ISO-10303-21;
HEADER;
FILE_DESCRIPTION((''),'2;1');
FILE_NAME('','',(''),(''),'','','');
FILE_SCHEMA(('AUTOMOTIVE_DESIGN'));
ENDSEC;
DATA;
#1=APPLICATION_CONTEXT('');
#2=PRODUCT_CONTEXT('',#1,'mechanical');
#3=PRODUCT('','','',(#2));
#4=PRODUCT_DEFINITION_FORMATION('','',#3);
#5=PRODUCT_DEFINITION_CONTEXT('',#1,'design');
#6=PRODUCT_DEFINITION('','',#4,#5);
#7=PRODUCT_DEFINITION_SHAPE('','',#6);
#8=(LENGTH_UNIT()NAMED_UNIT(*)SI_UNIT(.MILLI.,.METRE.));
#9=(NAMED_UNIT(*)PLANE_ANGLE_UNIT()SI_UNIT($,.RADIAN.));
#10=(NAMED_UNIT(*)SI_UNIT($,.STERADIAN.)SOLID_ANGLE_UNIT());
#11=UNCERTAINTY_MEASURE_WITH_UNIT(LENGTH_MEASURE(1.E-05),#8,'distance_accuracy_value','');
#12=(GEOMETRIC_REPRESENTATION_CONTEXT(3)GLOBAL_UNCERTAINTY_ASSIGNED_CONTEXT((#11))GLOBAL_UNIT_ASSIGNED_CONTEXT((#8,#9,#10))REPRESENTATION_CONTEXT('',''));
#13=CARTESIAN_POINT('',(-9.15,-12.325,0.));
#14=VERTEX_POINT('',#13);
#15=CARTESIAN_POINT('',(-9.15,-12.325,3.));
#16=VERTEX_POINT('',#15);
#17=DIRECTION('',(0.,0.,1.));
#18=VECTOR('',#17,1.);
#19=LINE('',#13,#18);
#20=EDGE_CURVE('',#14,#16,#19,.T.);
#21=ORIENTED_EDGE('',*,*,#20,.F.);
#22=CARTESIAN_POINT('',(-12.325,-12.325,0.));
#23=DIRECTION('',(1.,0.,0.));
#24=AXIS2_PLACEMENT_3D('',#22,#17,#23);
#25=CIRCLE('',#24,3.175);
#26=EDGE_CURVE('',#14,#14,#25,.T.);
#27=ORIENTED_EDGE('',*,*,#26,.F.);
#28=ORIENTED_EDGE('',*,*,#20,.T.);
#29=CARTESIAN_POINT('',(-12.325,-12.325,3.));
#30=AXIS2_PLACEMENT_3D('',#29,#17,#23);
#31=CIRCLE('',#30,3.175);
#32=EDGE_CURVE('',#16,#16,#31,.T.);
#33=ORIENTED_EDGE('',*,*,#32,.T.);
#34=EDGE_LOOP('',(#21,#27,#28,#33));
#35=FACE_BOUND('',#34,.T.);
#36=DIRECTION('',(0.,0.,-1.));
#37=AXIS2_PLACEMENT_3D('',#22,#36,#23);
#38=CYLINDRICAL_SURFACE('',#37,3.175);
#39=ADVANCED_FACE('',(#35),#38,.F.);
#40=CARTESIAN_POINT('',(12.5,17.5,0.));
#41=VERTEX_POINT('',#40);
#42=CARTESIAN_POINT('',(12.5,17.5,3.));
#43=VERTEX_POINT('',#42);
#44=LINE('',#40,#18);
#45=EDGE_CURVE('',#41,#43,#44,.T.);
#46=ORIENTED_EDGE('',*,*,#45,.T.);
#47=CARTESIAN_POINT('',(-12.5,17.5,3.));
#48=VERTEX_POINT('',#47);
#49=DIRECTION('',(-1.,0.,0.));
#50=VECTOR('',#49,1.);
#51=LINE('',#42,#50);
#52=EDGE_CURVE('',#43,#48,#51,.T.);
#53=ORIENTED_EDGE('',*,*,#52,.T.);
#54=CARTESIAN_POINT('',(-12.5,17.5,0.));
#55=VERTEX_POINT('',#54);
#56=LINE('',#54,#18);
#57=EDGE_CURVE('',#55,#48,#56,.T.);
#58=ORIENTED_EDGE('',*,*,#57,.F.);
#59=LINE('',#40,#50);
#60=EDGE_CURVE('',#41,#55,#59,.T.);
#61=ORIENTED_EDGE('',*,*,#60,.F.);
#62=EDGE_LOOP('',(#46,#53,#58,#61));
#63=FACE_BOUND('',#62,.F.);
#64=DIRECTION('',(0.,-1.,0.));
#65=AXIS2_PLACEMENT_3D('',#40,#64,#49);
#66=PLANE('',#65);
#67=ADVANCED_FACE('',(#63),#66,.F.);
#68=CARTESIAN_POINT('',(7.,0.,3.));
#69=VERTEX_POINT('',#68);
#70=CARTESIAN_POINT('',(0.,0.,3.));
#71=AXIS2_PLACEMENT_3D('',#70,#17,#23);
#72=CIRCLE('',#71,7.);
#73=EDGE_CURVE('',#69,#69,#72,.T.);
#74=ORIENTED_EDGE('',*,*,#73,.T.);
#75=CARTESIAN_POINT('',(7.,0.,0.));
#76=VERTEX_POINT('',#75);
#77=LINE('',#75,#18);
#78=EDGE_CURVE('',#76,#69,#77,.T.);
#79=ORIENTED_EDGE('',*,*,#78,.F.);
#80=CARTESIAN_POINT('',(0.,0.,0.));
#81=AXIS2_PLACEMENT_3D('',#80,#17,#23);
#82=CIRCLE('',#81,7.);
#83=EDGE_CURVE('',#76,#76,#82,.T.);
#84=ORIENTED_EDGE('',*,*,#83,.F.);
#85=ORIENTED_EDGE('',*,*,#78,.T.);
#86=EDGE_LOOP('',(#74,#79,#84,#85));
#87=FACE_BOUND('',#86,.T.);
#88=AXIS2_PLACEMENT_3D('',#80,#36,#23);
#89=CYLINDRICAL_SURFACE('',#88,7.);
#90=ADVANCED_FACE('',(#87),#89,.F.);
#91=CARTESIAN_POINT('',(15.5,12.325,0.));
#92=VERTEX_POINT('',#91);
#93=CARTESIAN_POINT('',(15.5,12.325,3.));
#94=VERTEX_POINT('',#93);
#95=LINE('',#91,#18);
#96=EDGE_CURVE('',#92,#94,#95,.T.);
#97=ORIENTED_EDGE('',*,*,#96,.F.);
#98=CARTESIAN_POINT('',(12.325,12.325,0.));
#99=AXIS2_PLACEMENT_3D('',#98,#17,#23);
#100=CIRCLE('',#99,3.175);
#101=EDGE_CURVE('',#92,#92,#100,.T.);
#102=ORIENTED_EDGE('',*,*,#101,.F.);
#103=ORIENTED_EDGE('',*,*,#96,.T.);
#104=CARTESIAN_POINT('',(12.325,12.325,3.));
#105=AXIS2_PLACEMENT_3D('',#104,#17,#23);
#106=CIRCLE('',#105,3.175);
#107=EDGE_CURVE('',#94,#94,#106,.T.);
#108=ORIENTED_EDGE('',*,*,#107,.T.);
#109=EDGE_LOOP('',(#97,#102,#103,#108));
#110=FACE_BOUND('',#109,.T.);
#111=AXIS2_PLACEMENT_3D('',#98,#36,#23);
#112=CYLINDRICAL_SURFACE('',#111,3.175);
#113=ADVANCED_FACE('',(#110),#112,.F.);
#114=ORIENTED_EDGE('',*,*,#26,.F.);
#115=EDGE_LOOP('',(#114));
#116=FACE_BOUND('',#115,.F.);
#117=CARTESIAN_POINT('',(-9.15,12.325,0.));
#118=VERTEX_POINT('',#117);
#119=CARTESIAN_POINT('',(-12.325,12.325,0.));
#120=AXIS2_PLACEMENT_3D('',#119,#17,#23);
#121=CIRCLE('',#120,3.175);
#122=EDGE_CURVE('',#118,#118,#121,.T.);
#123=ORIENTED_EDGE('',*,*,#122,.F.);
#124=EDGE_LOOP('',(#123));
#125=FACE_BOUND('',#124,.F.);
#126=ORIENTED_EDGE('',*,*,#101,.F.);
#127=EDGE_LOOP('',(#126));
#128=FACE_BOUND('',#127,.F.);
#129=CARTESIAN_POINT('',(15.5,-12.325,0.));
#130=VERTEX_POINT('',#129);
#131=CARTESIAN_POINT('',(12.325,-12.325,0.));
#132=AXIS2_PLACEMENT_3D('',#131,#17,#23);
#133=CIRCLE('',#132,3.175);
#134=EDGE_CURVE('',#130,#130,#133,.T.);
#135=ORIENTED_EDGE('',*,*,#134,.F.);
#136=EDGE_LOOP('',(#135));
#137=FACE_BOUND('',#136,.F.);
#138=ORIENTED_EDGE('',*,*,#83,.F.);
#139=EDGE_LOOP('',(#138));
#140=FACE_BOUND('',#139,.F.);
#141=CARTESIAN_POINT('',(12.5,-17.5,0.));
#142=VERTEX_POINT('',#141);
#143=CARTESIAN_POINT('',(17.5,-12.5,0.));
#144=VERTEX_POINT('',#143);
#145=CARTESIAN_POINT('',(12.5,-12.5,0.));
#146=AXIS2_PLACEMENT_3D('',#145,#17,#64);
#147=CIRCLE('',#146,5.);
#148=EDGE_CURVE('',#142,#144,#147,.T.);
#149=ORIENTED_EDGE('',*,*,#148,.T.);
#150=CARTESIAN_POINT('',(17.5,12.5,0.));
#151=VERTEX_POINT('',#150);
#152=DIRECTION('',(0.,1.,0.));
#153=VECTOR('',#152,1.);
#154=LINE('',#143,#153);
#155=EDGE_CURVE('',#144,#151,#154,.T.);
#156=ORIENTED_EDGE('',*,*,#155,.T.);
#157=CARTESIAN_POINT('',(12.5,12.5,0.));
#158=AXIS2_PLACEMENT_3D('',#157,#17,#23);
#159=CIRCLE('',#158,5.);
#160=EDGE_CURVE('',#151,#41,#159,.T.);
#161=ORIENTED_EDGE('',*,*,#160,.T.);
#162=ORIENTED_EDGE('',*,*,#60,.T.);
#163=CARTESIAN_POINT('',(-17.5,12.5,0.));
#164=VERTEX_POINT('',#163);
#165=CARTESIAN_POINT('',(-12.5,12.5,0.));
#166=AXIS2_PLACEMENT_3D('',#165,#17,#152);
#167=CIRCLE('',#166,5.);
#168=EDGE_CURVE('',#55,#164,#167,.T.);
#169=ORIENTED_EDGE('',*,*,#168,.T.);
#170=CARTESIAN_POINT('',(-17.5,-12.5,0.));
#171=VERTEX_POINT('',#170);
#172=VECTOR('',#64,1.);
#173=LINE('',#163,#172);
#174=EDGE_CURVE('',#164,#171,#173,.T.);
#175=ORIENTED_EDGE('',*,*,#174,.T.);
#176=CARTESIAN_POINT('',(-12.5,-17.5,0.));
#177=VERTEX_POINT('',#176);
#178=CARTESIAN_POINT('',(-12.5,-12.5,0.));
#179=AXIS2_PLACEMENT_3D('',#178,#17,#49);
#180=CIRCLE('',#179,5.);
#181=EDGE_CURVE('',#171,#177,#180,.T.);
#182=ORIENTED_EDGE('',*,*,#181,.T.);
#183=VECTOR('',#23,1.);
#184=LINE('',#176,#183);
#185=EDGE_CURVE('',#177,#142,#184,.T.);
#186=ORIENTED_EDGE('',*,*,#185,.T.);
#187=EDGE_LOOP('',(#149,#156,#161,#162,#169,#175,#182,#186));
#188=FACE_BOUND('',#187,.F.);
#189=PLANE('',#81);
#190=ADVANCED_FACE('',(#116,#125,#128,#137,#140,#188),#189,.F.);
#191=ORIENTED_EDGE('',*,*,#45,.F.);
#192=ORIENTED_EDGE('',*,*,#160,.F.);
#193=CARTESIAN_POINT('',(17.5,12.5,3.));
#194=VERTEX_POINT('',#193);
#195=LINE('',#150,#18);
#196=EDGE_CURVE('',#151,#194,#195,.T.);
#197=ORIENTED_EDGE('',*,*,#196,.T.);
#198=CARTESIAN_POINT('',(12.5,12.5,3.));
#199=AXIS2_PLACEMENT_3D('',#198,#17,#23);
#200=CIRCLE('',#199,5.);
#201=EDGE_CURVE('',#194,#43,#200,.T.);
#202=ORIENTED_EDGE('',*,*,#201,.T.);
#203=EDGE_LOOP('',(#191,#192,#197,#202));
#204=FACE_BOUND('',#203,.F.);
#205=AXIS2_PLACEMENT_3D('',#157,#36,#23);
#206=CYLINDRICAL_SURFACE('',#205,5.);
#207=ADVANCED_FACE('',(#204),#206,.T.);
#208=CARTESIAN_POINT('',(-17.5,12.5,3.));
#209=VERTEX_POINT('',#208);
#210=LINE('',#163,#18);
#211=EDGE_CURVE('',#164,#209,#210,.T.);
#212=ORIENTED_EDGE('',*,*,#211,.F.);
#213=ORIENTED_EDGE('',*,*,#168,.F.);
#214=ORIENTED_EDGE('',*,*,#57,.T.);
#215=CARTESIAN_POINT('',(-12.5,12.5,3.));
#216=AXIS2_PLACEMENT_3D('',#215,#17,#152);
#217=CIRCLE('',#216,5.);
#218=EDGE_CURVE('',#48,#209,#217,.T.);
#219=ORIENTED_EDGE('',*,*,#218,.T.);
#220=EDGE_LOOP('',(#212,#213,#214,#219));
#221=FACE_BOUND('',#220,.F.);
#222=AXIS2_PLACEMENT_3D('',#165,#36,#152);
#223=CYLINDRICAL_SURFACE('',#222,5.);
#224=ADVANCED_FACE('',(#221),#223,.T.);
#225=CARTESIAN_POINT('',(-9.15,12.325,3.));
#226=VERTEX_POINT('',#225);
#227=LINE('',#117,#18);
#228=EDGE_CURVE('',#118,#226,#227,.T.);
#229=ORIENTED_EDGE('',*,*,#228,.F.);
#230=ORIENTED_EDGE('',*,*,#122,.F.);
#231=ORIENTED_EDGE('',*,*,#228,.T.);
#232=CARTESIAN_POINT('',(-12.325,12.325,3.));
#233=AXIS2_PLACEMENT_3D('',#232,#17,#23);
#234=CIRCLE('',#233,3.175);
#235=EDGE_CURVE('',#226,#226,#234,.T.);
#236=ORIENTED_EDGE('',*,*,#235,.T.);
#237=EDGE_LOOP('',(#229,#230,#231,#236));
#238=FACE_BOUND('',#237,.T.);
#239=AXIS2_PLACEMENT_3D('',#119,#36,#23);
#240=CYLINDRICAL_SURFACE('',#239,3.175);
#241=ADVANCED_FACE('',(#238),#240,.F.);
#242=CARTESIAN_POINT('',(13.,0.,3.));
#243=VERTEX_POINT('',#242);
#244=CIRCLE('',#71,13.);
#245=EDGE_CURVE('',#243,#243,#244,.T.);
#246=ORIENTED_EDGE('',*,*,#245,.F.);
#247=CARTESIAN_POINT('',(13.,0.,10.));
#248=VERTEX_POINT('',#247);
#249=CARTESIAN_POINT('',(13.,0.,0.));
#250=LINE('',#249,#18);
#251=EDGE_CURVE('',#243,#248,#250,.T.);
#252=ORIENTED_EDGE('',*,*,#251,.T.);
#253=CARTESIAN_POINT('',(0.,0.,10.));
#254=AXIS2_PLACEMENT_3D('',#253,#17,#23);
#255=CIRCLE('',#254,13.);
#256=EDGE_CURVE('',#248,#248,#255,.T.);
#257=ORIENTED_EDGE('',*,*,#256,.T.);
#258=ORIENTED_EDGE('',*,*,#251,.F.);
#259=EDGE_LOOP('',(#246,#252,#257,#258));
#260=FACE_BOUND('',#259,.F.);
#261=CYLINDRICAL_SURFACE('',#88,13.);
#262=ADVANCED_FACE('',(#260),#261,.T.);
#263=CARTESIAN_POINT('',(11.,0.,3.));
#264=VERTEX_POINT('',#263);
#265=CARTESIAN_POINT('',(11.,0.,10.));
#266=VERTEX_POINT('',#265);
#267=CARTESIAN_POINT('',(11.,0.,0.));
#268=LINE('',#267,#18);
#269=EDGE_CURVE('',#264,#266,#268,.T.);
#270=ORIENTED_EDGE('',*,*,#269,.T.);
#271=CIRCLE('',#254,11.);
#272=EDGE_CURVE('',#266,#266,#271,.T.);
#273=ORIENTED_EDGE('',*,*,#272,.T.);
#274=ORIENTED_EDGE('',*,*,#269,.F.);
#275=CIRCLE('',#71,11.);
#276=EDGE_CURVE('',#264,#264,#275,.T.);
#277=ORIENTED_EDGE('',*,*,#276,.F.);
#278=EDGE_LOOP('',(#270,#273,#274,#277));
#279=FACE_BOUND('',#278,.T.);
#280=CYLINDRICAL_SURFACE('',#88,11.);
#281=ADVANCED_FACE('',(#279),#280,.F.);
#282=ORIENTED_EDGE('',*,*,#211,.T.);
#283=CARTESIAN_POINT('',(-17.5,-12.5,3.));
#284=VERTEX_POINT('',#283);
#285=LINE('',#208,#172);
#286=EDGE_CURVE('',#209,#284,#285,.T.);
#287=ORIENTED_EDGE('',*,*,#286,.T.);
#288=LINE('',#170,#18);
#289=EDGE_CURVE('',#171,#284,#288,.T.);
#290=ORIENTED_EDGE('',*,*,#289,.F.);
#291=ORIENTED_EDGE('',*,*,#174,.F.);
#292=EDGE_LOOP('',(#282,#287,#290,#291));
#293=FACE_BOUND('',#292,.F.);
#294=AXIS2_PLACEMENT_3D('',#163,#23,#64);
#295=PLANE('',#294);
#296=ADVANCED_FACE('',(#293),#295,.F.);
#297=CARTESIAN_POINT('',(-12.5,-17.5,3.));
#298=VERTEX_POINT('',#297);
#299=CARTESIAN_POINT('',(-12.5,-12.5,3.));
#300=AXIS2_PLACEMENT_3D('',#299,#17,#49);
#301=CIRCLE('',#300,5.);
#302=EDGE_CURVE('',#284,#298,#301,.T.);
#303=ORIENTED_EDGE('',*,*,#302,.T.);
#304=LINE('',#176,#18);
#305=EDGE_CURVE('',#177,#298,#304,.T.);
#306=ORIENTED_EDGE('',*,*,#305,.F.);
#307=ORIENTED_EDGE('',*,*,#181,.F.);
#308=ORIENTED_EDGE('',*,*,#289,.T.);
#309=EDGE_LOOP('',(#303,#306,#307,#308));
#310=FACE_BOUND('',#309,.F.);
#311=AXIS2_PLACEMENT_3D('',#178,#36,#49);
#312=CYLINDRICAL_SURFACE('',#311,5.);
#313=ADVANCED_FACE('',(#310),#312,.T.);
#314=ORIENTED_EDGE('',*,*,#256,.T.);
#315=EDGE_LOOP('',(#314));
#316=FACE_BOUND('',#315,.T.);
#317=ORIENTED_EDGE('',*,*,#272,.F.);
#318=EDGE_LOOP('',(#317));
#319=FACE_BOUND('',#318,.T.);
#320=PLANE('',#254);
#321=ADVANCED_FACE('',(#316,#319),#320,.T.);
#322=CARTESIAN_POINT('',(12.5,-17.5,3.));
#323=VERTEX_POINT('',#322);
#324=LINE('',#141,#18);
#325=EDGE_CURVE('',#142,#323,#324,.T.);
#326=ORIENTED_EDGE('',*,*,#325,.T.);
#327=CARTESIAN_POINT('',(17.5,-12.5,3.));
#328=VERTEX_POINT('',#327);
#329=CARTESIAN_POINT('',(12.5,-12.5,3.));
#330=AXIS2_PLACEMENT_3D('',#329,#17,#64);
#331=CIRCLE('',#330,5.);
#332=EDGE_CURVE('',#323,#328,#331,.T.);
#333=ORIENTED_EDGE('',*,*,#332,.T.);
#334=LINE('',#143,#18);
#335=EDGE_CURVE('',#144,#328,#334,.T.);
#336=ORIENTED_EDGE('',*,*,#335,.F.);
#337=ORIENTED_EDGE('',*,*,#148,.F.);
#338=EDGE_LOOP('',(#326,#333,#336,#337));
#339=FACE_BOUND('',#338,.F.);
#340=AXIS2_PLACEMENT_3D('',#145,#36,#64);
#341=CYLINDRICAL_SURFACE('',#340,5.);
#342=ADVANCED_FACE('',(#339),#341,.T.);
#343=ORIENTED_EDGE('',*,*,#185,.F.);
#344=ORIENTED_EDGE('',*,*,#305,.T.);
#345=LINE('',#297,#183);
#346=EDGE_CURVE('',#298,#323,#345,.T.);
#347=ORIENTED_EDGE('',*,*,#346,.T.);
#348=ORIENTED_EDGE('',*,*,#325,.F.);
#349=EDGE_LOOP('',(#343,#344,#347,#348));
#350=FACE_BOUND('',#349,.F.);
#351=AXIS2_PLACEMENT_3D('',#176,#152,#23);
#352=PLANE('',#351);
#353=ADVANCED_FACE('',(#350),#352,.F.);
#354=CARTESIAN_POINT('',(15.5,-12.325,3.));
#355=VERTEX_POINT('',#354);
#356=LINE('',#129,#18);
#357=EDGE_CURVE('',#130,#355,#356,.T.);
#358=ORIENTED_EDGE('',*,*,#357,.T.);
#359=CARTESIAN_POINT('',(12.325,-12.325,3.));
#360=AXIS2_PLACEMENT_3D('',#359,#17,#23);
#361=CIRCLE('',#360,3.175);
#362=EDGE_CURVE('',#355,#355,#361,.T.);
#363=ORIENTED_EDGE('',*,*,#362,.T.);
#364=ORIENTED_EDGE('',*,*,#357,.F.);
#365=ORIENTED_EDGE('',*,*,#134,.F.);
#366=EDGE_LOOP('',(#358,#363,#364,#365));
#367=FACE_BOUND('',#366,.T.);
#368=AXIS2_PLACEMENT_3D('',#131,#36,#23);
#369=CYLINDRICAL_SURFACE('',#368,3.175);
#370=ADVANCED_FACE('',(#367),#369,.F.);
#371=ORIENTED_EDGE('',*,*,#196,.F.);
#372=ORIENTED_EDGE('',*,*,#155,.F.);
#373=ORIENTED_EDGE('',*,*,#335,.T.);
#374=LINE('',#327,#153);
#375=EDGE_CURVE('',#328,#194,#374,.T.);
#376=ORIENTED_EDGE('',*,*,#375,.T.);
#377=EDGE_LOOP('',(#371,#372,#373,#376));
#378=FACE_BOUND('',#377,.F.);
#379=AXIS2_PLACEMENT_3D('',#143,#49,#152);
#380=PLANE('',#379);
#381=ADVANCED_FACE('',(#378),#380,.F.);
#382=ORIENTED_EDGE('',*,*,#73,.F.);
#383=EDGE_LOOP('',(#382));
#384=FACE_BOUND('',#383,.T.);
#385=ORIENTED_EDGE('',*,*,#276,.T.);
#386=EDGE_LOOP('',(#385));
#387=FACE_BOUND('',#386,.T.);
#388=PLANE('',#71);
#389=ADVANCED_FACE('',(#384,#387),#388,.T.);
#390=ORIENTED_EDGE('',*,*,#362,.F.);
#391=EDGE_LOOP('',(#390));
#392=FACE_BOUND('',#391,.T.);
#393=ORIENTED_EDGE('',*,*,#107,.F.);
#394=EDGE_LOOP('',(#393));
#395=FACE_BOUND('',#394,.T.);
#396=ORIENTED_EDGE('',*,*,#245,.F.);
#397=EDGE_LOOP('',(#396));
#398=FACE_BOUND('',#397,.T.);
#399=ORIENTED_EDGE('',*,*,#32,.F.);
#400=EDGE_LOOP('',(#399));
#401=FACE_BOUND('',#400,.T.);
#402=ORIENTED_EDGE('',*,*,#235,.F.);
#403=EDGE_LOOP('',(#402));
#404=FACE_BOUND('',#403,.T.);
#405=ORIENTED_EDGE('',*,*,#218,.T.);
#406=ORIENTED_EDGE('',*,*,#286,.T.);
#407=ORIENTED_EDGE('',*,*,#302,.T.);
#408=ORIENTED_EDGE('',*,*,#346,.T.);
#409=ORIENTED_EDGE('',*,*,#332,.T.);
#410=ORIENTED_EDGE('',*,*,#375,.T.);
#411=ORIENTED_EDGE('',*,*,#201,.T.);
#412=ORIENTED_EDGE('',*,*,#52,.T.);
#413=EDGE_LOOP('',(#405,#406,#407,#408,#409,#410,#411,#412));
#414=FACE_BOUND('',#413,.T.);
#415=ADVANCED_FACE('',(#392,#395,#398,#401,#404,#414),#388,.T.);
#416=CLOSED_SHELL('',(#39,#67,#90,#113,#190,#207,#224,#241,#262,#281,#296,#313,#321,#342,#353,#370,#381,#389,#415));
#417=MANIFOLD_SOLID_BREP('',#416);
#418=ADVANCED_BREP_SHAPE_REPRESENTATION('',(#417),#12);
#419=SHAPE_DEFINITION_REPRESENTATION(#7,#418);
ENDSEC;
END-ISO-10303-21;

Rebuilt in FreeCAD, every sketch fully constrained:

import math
import FreeCAD as App
import Part
import Sketcher
Q = App.Units.Quantity

doc = App.newDocument("Part")
body = doc.addObject("PartDesign::Body", "Body")

# Sketch on XY plane
sketch1 = doc.addObject("Sketcher::SketchObject", "Sketch")
body.addObject(sketch1)
sketch1.AttachmentSupport = (doc.XY_Plane, [""])
sketch1.MapMode = "FlatFace"
sketch1.addGeometry(Part.ArcOfCircle(Part.Circle(App.Vector(12.5, 12.5, 0), App.Vector(0, 0, 1), 5), math.radians(0), math.radians(90)), False)
sketch1.addGeometry(Part.LineSegment(App.Vector(12.5, 17.5, 0), App.Vector(-12.5, 17.5, 0)), False)
sketch1.addGeometry(Part.ArcOfCircle(Part.Circle(App.Vector(-12.5, 12.5, 0), App.Vector(0, 0, 1), 5), math.radians(90), math.radians(180)), False)
sketch1.addGeometry(Part.LineSegment(App.Vector(-17.5, 12.5, 0), App.Vector(-17.5, -12.5, 0)), False)
sketch1.addGeometry(Part.ArcOfCircle(Part.Circle(App.Vector(-12.5, -12.5, 0), App.Vector(0, 0, 1), 5), math.radians(180), math.radians(270)), False)
sketch1.addGeometry(Part.LineSegment(App.Vector(-12.5, -17.5, 0), App.Vector(12.5, -17.5, 0)), False)
sketch1.addGeometry(Part.ArcOfCircle(Part.Circle(App.Vector(12.5, -12.5, 0), App.Vector(0, 0, 1), 5), math.radians(-90), math.radians(0)), False)
sketch1.addGeometry(Part.LineSegment(App.Vector(17.5, -12.5, 0), App.Vector(17.5, 12.5, 0)), False)
sketch1.addGeometry(Part.Circle(App.Vector(-12.3, -12.3, 0), App.Vector(0, 0, 1), 3.2), False)
sketch1.addGeometry(Part.Circle(App.Vector(12.3, -12.3, 0), App.Vector(0, 0, 1), 3.2), False)
sketch1.addGeometry(Part.Circle(App.Vector(-12.3, 12.3, 0), App.Vector(0, 0, 1), 3.2), False)
sketch1.addGeometry(Part.Circle(App.Vector(0, 0, 0), App.Vector(0, 0, 1), 13), False)
sketch1.addGeometry(Part.Circle(App.Vector(12.3, 12.3, 0), App.Vector(0, 0, 1), 3.2), False)
sketch1.addConstraint(Sketcher.Constraint("Tangent", 0, 2, 1, 1))
sketch1.addConstraint(Sketcher.Constraint("Tangent", 1, 2, 2, 1))
sketch1.addConstraint(Sketcher.Constraint("Tangent", 2, 2, 3, 1))
sketch1.addConstraint(Sketcher.Constraint("Tangent", 3, 2, 4, 1))
sketch1.addConstraint(Sketcher.Constraint("Tangent", 4, 2, 5, 1))
sketch1.addConstraint(Sketcher.Constraint("Tangent", 5, 2, 6, 1))
sketch1.addConstraint(Sketcher.Constraint("Tangent", 6, 2, 7, 1))
sketch1.addConstraint(Sketcher.Constraint("Tangent", 7, 2, 0, 1))
sketch1.addConstraint(Sketcher.Constraint("Horizontal", 1))
sketch1.addConstraint(Sketcher.Constraint("Vertical", 3))
sketch1.addConstraint(Sketcher.Constraint("Horizontal", 5))
sketch1.addConstraint(Sketcher.Constraint("Vertical", 7))
sketch1.addConstraint(Sketcher.Constraint("Coincident", 11, 3, -1, 1))
sketch1.addConstraint(Sketcher.Constraint("Equal", 0, 2))
sketch1.addConstraint(Sketcher.Constraint("Equal", 2, 4))
sketch1.addConstraint(Sketcher.Constraint("Equal", 4, 6))
sketch1.addConstraint(Sketcher.Constraint("Equal", 8, 9))
sketch1.addConstraint(Sketcher.Constraint("Equal", 9, 10))
sketch1.addConstraint(Sketcher.Constraint("Equal", 10, 12))
sketch1.addConstraint(Sketcher.Constraint("Symmetric", 0, 3, 4, 3, -1, 1))
sketch1.addConstraint(Sketcher.Constraint("Symmetric", 9, 3, 10, 3, -1, 1))
sketch1.addConstraint(Sketcher.Constraint("Symmetric", 8, 3, 12, 3, -1, 1))
sketch1.addConstraint(Sketcher.Constraint("Symmetric", 8, 3, 9, 3, -2))
sketch1.addConstraint(Sketcher.Constraint("Equal", 5, 3))
sketch1.addConstraint(Sketcher.Constraint("Diameter", 11, Q("26 mm")))
sketch1.addConstraint(Sketcher.Constraint("Radius", 0, Q("5 mm")))
sketch1.addConstraint(Sketcher.Constraint("Diameter", 8, Q("6.35 mm")))
sketch1.addConstraint(Sketcher.Constraint("DistanceX", 1, 2, 1, 1, Q("25 mm")))
sketch1.addConstraint(Sketcher.Constraint("DistanceX", 8, 3, 9, 3, Q("24.65 mm")))
sketch1.addConstraint(Sketcher.Constraint("DistanceY", 8, 3, 10, 3, Q("24.65 mm")))
pad1 = doc.addObject("PartDesign::Pad", "Pad")
body.addObject(pad1)
pad1.Profile = sketch1
pad1.Length = 3
body2 = doc.addObject("PartDesign::Body", "Body001")

# Sketch on XY plane
sketch2 = doc.addObject("Sketcher::SketchObject", "Sketch001")
body2.addObject(sketch2)
sketch2.AttachmentSupport = (doc.getObject("XY_Plane001"), [""])
sketch2.MapMode = "FlatFace"
sketch2.addGeometry(Part.Circle(App.Vector(0, 0, 0), App.Vector(0, 0, 1), 11), False)
sketch2.addGeometry(Part.Circle(App.Vector(0, 0, 0), App.Vector(0, 0, 1), 7), False)
sketch2.addConstraint(Sketcher.Constraint("Coincident", 0, 3, -1, 1))
sketch2.addConstraint(Sketcher.Constraint("Coincident", 1, 3, -1, 1))
sketch2.addConstraint(Sketcher.Constraint("Diameter", 0, Q("22 mm")))
sketch2.addConstraint(Sketcher.Constraint("Diameter", 1, Q("14 mm")))
pad2 = doc.addObject("PartDesign::Pad", "Pad001")
body2.addObject(pad2)
pad2.Profile = sketch2
pad2.Length = 3
body.AllowCompound = True
doc.recompute()

boolean = doc.addObject("PartDesign::Boolean", "Boolean")
body.addObject(boolean)
boolean.Type = "Fuse"
boolean.addObjects([body2])

# Sketch on XY plane
sketch3 = doc.addObject("Sketcher::SketchObject", "Sketch002")
body.addObject(sketch3)
sketch3.AttachmentSupport = (doc.XY_Plane, [""])
sketch3.MapMode = "FlatFace"
sketch3.addGeometry(Part.Circle(App.Vector(0, 0, 0), App.Vector(0, 0, 1), 13), False)
sketch3.addGeometry(Part.Circle(App.Vector(0, 0, 0), App.Vector(0, 0, 1), 11), False)
sketch3.addConstraint(Sketcher.Constraint("Coincident", 0, 3, -1, 1))
sketch3.addConstraint(Sketcher.Constraint("Coincident", 1, 3, -1, 1))
sketch3.addConstraint(Sketcher.Constraint("Diameter", 0, Q("26 mm")))
sketch3.addConstraint(Sketcher.Constraint("Diameter", 1, Q("22 mm")))
pad3 = doc.addObject("PartDesign::Pad", "Pad002")
body.addObject(pad3)
pad3.Profile = sketch3
pad3.Length = 10

doc.recompute()
